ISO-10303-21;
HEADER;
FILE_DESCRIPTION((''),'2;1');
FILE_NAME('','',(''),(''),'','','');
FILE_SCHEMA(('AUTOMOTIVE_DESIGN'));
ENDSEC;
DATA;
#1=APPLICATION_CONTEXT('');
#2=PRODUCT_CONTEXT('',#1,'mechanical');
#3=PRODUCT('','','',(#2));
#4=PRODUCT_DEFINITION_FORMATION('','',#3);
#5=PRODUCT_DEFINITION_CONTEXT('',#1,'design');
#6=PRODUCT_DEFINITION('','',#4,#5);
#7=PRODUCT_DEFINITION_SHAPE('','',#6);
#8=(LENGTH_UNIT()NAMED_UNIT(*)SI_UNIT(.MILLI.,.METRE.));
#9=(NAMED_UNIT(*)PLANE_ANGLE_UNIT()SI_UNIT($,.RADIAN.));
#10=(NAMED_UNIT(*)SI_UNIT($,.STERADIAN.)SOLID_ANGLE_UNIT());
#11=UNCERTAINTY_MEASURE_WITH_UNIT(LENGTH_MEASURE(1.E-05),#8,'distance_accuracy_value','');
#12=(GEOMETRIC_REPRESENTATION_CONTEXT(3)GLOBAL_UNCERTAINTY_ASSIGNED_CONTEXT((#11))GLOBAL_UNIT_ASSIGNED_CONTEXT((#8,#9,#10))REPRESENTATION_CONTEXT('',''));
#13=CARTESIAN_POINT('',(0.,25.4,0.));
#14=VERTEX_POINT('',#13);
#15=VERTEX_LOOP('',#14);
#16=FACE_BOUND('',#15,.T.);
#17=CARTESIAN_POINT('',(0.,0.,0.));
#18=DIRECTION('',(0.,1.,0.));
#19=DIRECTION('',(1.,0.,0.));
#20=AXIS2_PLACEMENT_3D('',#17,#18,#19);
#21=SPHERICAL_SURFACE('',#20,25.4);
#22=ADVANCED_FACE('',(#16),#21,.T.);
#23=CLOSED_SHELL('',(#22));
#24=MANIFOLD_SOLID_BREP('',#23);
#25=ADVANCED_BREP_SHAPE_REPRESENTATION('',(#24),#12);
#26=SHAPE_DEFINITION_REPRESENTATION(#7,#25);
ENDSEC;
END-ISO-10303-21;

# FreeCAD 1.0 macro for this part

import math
import FreeCAD as App
import Part
import Sketcher
from FreeCAD import Vector
Q = App.Units.Quantity

doc = App.newDocument("Part")
body = doc.addObject("PartDesign::Body", "Body")

sketch1 = doc.addObject("Sketcher::SketchObject", "Sketch")
body.addObject(sketch1)
sketch1.AttachmentSupport = (doc.XY_Plane, [""])
sketch1.MapMode = "FlatFace"
sketch1.addGeometry([
    Part.LineSegment(Vector(0, 25, 0), Vector(0, -25, 0)),
    Part.ArcOfCircle(Part.Circle(Vector(0, 0, 0), Vector(0, 0, 1), 25), math.radians(-90), math.radians(90)),
], False)
sketch1.addConstraint([
    Sketcher.Constraint("Coincident", 0, 1, 1, 2),
    Sketcher.Constraint("Coincident", 1, 1, 0, 2),
    Sketcher.Constraint("Vertical", 0),
    Sketcher.Constraint("Coincident", 1, 3, -1, 1),
    Sketcher.Constraint("PointOnObject", 0, 1, -2),
    Sketcher.Constraint("Radius", 1, Q("1 in")),
])
revolution = doc.addObject("PartDesign::Revolution", "Revolution")
body.addObject(revolution)
revolution.Profile = sketch1
revolution.ReferenceAxis = (sketch1, ["V_Axis"])
revolution.Angle = 360

doc.recompute()
